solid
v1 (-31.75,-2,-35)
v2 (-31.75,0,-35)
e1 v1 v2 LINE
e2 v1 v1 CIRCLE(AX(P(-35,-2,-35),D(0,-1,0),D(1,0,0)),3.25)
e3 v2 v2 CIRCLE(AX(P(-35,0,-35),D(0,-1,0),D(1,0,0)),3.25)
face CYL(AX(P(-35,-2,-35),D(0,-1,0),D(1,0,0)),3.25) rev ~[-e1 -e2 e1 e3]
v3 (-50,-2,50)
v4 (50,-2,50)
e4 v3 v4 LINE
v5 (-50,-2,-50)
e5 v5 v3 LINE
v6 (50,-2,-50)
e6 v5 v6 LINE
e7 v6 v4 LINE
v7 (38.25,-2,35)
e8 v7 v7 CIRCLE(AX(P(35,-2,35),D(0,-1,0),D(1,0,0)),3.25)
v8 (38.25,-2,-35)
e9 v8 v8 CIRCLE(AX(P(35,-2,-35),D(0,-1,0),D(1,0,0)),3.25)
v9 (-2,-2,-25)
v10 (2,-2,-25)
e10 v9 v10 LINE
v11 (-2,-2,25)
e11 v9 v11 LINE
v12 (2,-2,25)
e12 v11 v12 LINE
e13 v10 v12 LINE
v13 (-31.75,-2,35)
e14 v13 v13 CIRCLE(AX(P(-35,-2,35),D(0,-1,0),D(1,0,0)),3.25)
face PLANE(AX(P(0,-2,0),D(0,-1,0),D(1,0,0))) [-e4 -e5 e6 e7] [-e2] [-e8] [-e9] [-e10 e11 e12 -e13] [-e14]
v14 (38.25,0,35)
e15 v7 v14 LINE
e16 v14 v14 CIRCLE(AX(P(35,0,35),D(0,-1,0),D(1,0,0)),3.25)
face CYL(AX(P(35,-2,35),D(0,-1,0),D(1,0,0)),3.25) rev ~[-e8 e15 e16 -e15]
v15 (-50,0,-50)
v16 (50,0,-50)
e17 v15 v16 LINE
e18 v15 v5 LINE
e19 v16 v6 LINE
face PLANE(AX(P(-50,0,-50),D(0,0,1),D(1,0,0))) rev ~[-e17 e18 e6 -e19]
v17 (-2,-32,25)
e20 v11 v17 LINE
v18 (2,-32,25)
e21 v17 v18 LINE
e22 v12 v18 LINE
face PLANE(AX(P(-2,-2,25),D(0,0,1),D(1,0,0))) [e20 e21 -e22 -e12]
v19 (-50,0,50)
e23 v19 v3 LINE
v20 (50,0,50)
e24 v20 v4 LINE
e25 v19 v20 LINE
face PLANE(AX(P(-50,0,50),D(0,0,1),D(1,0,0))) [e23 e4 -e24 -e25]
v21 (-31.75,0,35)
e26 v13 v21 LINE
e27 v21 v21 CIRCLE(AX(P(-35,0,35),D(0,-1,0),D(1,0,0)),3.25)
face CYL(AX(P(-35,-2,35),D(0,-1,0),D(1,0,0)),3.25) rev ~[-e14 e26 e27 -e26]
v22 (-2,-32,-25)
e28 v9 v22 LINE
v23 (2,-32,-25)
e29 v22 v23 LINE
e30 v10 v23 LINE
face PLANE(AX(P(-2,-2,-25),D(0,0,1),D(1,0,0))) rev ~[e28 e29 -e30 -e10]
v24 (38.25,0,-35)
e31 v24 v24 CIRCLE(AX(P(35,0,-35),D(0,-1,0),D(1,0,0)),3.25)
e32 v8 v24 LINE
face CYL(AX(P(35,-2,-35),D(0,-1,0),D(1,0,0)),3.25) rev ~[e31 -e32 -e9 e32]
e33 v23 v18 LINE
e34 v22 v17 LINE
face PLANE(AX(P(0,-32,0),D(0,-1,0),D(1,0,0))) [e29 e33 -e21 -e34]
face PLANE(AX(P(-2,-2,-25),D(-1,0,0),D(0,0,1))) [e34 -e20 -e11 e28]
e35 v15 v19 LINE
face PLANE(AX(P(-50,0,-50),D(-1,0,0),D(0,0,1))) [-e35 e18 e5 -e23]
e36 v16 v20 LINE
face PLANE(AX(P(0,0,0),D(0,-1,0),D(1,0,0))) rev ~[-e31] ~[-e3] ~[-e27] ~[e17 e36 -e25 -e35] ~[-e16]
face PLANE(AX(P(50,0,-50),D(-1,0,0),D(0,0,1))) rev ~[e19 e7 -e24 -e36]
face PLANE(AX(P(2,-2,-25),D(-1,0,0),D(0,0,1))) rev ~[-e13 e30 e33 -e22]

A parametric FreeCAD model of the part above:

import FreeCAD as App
import Part
import Sketcher
from FreeCAD import Vector


def add_polygon(sketch, points):
    """Adds a closed chain of lines whose ends are joined by coincident constraints."""
    first, n = sketch.GeometryCount, len(points)
    for a, b in zip(points, points[1:] + points[:1]):
        sketch.addGeometry(Part.LineSegment(App.Vector(*a, 0), App.Vector(*b, 0)), False)
    for i in range(n):
        sketch.addConstraint(Sketcher.Constraint("Coincident", first + i, 2, first + (i + 1) % n, 1))

doc = App.newDocument("Part")
params = doc.addObject("Spreadsheet::Sheet", "Params")
for row, (alias, value) in enumerate([
    ("sketch1_width", "100 mm"),
    ("pad1_length", "2 mm"),
    ("sketch2_diameter", "6.5 mm"),
    ("sketch3_width", "4 mm"),
    ("sketch3_height", "50 mm"),
    ("pad2_length", "30 mm"),
], start=1):
    params.set(f"A{row}", alias)
    params.set(f"B{row}", "=" + value)
    params.setAlias(f"B{row}", alias)

body = doc.addObject("PartDesign::Body", "Body")

sketch1 = body.newObject("Sketcher::SketchObject", "Sketch")
sketch1.AttachmentSupport = (doc.getObject("XZ_Plane"), [""])
sketch1.MapMode = "FlatFace"
add_polygon(sketch1, [(-50, 50), (-50, -50), (50, -50), (50, 50)])
sketch1.addConstraint(Sketcher.Constraint("Vertical", 0))
sketch1.addConstraint(Sketcher.Constraint("Horizontal", 1))
sketch1.addConstraint(Sketcher.Constraint("Vertical", 2))
sketch1.addConstraint(Sketcher.Constraint("Horizontal", 3))
sketch1.addConstraint(Sketcher.Constraint("Symmetric", 0, 2, 2, 2, -1, 1))
sketch1.addConstraint(Sketcher.Constraint("Equal", 3, 0))
sketch1.addConstraint(Sketcher.Constraint("DistanceX", 1, 1, 1, 2, 100.0))
sketch1.setExpression("Constraints[10]", "Params.sketch1_width")
pad1 = body.newObject("PartDesign::Pad", "Pad")
pad1.Profile = sketch1
pad1.setExpression("Length", "Params.pad1_length")

sketch2 = body.newObject("Sketcher::SketchObject", "Sketch001")
sketch2.AttachmentSupport = (doc.getObject("XZ_Plane"), [""])
sketch2.MapMode = "FlatFace"
sketch2.AttachmentOffset = App.Placement(Vector(0, 0, 2), App.Rotation())
sketch2.addGeometry(Part.Circle(Vector(-35, 35, 0), Vector(0, 0, 1), 3.25), False)
sketch2.addGeometry(Part.Circle(Vector(35, 35, 0), Vector(0, 0, 1), 3.25), False)
sketch2.addGeometry(Part.Circle(Vector(-35, -35, 0), Vector(0, 0, 1), 3.25), False)
sketch2.addGeometry(Part.Circle(Vector(35, -35, 0), Vector(0, 0, 1), 3.25), False)
sketch2.addConstraint(Sketcher.Constraint("Equal", 0, 1))
sketch2.addConstraint(Sketcher.Constraint("Equal", 1, 2))
sketch2.addConstraint(Sketcher.Constraint("Equal", 2, 3))
sketch2.addConstraint(Sketcher.Constraint("Symmetric", 1, 3, 2, 3, -1, 1))
sketch2.addConstraint(Sketcher.Constraint("Symmetric", 0, 3, 3, 3, -1, 1))
sketch2.addConstraint(Sketcher.Constraint("Symmetric", 0, 3, 1, 3, -2))
sketch2.addConstraint(Sketcher.Constraint("Diameter", 0, 6.5))
sketch2.addConstraint(Sketcher.Constraint("DistanceX", 0, 3, -1, 1, 35.0))
sketch2.addConstraint(Sketcher.Constraint("DistanceY", -1, 1, 0, 3, 35.0))
sketch2.setExpression("Constraints[6]", "Params.sketch2_diameter")
pocket1 = body.newObject("PartDesign::Pocket", "Pocket")
pocket1.Profile = sketch2
pocket1.Type = "ThroughAll"

sketch3 = body.newObject("Sketcher::SketchObject", "Sketch002")
sketch3.AttachmentSupport = (doc.getObject("XZ_Plane"), [""])
sketch3.MapMode = "FlatFace"
sketch3.AttachmentOffset = App.Placement(Vector(0, 0, 2), App.Rotation())
add_polygon(sketch3, [(-2, 25), (-2, -25), (2, -25), (2, 25)])
sketch3.addConstraint(Sketcher.Constraint("Vertical", 0))
sketch3.addConstraint(Sketcher.Constraint("Horizontal", 1))
sketch3.addConstraint(Sketcher.Constraint("Vertical", 2))
sketch3.addConstraint(Sketcher.Constraint("Horizontal", 3))
sketch3.addConstraint(Sketcher.Constraint("Symmetric", 0, 2, 2, 2, -1, 1))
sketch3.addConstraint(Sketcher.Constraint("DistanceX", 1, 1, 1, 2, 4.0))
sketch3.addConstraint(Sketcher.Constraint("DistanceY", 0, 2, 0, 1, 50.0))
sketch3.setExpression("Constraints[9]", "Params.sketch3_width")
sketch3.setExpression("Constraints[10]", "Params.sketch3_height")
pad2 = body.newObject("PartDesign::Pad", "Pad001")
pad2.Profile = sketch3
pad2.setExpression("Length", "Params.pad2_length")

doc.recompute()
